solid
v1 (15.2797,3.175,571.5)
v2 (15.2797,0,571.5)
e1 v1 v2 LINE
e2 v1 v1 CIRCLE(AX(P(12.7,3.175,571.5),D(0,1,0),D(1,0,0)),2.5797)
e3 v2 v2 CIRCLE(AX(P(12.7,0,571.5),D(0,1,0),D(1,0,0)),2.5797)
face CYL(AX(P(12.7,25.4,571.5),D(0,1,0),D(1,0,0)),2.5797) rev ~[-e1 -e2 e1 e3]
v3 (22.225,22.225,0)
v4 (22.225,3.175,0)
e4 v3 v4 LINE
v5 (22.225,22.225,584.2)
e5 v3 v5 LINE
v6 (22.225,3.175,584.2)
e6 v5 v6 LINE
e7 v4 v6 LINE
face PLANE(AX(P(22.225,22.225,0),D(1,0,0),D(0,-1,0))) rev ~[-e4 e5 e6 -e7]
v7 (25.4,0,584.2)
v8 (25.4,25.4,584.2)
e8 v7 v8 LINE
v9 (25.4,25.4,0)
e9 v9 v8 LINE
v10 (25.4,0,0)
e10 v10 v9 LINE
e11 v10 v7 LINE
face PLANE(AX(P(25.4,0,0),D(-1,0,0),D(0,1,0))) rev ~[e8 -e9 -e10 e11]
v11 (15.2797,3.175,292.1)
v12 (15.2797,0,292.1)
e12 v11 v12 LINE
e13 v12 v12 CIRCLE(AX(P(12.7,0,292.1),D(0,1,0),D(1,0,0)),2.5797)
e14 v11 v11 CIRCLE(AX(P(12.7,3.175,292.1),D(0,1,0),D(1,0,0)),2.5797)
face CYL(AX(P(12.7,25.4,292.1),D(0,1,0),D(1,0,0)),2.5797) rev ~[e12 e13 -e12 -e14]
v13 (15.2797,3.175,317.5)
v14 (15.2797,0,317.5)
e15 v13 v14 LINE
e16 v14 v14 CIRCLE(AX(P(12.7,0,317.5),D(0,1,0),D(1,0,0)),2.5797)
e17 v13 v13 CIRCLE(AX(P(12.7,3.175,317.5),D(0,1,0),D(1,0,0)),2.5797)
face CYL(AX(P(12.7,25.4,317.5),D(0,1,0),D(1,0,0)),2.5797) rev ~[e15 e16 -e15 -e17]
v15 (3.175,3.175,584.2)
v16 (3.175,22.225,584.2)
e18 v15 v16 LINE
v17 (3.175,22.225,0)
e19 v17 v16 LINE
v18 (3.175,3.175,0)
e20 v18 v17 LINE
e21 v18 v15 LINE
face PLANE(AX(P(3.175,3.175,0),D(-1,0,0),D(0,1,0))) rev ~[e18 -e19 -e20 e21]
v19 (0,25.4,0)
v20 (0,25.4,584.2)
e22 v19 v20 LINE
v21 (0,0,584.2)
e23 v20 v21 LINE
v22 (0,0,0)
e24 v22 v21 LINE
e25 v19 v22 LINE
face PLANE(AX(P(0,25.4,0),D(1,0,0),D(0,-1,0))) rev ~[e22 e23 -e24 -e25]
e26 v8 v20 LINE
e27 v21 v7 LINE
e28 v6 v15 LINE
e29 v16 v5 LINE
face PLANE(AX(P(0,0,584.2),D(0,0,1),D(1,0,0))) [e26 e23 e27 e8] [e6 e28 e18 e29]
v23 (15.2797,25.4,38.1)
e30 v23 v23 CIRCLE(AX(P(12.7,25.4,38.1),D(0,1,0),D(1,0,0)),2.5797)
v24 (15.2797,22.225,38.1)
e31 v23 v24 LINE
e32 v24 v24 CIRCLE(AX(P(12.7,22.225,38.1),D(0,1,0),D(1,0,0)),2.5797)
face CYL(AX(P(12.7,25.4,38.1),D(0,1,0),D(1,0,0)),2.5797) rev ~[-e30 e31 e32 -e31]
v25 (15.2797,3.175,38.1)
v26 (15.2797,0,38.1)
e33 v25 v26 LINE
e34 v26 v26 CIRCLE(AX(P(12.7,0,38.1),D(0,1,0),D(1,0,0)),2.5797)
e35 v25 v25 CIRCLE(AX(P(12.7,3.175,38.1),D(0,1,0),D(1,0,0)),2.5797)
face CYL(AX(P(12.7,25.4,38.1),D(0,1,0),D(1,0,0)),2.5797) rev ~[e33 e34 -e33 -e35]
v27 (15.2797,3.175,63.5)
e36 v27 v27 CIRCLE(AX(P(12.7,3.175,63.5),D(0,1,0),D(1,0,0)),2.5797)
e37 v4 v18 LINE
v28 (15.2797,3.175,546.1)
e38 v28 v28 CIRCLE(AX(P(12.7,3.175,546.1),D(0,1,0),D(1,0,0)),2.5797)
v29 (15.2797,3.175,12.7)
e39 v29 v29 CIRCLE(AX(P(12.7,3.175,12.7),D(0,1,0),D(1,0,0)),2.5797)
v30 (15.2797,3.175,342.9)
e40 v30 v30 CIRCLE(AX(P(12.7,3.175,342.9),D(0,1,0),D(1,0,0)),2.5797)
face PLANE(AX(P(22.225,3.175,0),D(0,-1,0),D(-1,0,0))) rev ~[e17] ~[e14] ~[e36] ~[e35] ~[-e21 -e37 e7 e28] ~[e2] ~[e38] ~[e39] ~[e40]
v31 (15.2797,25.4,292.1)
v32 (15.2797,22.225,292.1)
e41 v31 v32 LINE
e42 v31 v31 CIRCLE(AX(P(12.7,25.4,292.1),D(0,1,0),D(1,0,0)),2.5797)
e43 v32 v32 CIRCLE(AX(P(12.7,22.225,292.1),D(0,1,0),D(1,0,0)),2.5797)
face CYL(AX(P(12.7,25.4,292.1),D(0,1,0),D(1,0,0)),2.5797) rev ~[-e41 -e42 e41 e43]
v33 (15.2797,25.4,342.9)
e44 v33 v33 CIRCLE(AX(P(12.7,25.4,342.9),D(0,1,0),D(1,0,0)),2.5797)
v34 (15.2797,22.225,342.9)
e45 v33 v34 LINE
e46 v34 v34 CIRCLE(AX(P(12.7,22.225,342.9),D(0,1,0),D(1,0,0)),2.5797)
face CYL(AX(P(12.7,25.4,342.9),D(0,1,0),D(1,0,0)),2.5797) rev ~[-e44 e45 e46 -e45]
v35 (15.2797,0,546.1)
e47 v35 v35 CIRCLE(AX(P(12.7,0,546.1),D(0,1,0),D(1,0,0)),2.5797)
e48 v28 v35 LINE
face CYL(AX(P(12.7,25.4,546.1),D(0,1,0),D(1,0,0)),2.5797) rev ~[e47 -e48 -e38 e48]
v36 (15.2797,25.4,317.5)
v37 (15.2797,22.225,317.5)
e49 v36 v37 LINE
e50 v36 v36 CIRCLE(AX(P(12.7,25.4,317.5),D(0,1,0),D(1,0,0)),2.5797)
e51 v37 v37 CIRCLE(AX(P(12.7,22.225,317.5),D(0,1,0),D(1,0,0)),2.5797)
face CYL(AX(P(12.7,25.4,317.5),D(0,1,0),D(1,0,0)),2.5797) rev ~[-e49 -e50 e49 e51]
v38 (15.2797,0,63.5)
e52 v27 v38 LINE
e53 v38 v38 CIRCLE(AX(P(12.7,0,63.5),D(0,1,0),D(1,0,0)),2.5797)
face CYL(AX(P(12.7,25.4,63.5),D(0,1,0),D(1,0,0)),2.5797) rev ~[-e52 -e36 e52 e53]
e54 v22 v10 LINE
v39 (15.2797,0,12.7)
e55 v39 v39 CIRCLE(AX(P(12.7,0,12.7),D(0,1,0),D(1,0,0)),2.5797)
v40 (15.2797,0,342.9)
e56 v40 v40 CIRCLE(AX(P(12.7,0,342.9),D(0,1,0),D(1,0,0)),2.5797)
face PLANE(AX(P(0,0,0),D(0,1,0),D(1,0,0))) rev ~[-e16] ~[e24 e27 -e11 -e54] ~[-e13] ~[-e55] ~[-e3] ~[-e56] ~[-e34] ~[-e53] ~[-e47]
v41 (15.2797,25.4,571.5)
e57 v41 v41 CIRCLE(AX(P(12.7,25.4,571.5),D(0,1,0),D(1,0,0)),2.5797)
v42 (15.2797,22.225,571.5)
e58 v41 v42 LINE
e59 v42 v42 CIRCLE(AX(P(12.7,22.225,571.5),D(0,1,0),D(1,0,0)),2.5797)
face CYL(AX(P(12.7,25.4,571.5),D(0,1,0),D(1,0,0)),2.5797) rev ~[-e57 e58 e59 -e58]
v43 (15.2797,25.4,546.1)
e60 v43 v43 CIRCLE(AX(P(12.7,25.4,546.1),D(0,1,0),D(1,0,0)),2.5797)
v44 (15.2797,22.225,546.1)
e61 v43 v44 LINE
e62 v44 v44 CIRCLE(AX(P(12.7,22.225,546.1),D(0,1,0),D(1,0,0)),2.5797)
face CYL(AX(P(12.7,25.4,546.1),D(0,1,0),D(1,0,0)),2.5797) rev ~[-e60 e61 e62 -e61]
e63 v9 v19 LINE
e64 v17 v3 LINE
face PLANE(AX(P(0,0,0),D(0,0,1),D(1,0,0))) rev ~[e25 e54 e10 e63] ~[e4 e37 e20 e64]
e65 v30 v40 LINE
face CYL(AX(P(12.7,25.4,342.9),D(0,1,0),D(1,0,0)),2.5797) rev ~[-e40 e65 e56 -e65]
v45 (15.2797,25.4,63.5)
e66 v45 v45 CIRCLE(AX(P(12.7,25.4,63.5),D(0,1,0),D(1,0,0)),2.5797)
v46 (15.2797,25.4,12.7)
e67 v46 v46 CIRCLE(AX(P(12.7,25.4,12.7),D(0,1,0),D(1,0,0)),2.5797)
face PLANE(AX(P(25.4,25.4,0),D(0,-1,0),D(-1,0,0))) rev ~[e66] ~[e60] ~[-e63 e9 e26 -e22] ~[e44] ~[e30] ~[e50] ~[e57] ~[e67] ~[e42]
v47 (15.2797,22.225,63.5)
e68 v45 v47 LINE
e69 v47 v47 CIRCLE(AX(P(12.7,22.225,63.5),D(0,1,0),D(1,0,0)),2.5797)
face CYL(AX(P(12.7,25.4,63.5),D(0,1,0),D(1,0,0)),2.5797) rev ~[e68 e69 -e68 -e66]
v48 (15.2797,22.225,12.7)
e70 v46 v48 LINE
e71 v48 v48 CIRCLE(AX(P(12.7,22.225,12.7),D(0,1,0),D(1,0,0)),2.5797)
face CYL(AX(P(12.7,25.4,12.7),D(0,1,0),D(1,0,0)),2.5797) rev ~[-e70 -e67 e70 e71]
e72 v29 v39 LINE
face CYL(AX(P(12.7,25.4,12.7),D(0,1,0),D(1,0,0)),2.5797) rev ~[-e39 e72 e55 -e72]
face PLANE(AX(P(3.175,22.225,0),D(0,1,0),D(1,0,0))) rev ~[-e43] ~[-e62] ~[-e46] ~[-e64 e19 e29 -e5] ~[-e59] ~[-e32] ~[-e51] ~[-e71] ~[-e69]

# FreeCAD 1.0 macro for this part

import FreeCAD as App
import Part
import Sketcher
Q = App.Units.Quantity

doc = App.newDocument("Part")
body = doc.addObject("PartDesign::Body", "Body")

sketch1 = body.newObject("Sketcher::SketchObject", "Sketch")
sketch1.AttachmentSupport = (doc.getObject("XY_Plane"), [""])
sketch1.MapMode = "FlatFace"
sketch1.addGeometry([
    Part.LineSegment(App.Vector(0, 25, 0), App.Vector(0, 0, 0)),
    Part.LineSegment(App.Vector(0, 0, 0), App.Vector(25, 0, 0)),
    Part.LineSegment(App.Vector(25, 0, 0), App.Vector(25, 25, 0)),
    Part.LineSegment(App.Vector(25, 25, 0), App.Vector(0, 25, 0)),
    Part.LineSegment(App.Vector(3, 3, 0), App.Vector(3, 22, 0)),
    Part.LineSegment(App.Vector(3, 22, 0), App.Vector(22, 22, 0)),
    Part.LineSegment(App.Vector(22, 22, 0), App.Vector(22, 3, 0)),
    Part.LineSegment(App.Vector(22, 3, 0), App.Vector(3, 3, 0)),
], False)
sketch1.addConstraint([
    Sketcher.Constraint("Coincident", 0, 2, 1, 1),
    Sketcher.Constraint("Coincident", 1, 2, 2, 1),
    Sketcher.Constraint("Coincident", 2, 2, 3, 1),
    Sketcher.Constraint("Coincident", 3, 2, 0, 1),
    Sketcher.Constraint("Coincident", 4, 2, 5, 1),
    Sketcher.Constraint("Coincident", 5, 2, 6, 1),
    Sketcher.Constraint("Coincident", 6, 2, 7, 1),
    Sketcher.Constraint("Coincident", 7, 2, 4, 1),
    Sketcher.Constraint("Vertical", 0),
    Sketcher.Constraint("Horizontal", 1),
    Sketcher.Constraint("Vertical", 2),
    Sketcher.Constraint("Horizontal", 3),
    Sketcher.Constraint("Vertical", 4),
    Sketcher.Constraint("Horizontal", 5),
    Sketcher.Constraint("Vertical", 6),
    Sketcher.Constraint("Horizontal", 7),
    Sketcher.Constraint("Coincident", 0, 2, -1, 1),
    Sketcher.Constraint("Equal", 3, 0),
    Sketcher.Constraint("Equal", 7, 4),
    Sketcher.Constraint("DistanceX", 1, 1, 1, 2, Q("1 in")),
    Sketcher.Constraint("DistanceX", -1, 1, 4, 2, Q("0.125 in")),
    Sketcher.Constraint("DistanceY", -1, 1, 6, 2, Q("0.125 in")),
    Sketcher.Constraint("DistanceY", 4, 2, 3, 2, Q("0.125 in")),
])
pad1 = body.newObject("PartDesign::Pad", "Pad")
pad1.Profile = sketch1
pad1.Length = Q("23 in")

sketch2 = body.newObject("Sketcher::SketchObject", "Sketch001")
sketch2.AttachmentSupport = (doc.getObject("XZ_Plane"), [""])
sketch2.MapMode = "FlatFace"
sketch2.AttachmentOffset = App.Placement(App.Vector(0, 0, -1 * 25.4), App.Rotation())
sketch2.addGeometry([
    Part.Circle(App.Vector(12.7, 12.7, 0), App.Vector(0, 0, 1), 2.6),
    Part.Circle(App.Vector(12.7, 38.1, 0), App.Vector(0, 0, 1), 2.6),
    Part.Circle(App.Vector(12.7, 63.5, 0), App.Vector(0, 0, 1), 2.6),
    Part.Circle(App.Vector(12.7, 317.5, 0), App.Vector(0, 0, 1), 2.6),
    Part.Circle(App.Vector(12.7, 292.1, 0), App.Vector(0, 0, 1), 2.6),
    Part.Circle(App.Vector(12.7, 342.9, 0), App.Vector(0, 0, 1), 2.6),
    Part.Circle(App.Vector(12.7, 546.1, 0), App.Vector(0, 0, 1), 2.6),
    Part.Circle(App.Vector(12.7, 571.5, 0), App.Vector(0, 0, 1), 2.6),
], False)
sketch2.addConstraint([
    Sketcher.Constraint("Equal", 0, 1),
    Sketcher.Constraint("Equal", 1, 2),
    Sketcher.Constraint("Equal", 2, 3),
    Sketcher.Constraint("Equal", 3, 4),
    Sketcher.Constraint("Equal", 4, 5),
    Sketcher.Constraint("Equal", 5, 6),
    Sketcher.Constraint("Equal", 6, 7),
    Sketcher.Constraint("Vertical", 0, 3, 1, 3),
    Sketcher.Constraint("Vertical", 1, 3, 2, 3),
    Sketcher.Constraint("Vertical", 2, 3, 3, 3),
    Sketcher.Constraint("Vertical", 3, 3, 4, 3),
    Sketcher.Constraint("Vertical", 4, 3, 5, 3),
    Sketcher.Constraint("Vertical", 5, 3, 6, 3),
    Sketcher.Constraint("Vertical", 6, 3, 7, 3),
    Sketcher.Constraint("Diameter", 0, Q("0.203126 in")),
    Sketcher.Constraint("DistanceY", 0, 3, 1, 3, Q("1 in")),
    Sketcher.Constraint("DistanceY", 1, 3, 2, 3, Q("1 in")),
    Sketcher.Constraint("DistanceY", 1, 3, 3, 3, Q("11 in")),
    Sketcher.Constraint("DistanceY", 4, 3, 3, 3, Q("1 in")),
    Sketcher.Constraint("DistanceY", 3, 3, 5, 3, Q("1 in")),
    Sketcher.Constraint("DistanceY", 6, 3, 7, 3, Q("1 in")),
    Sketcher.Constraint("DistanceY", 4, 3, 7, 3, Q("11 in")),
    Sketcher.Constraint("DistanceX", -1, 1, 0, 3, Q("0.5 in")),
    Sketcher.Constraint("DistanceY", -1, 1, 0, 3, Q("0.5 in")),
])
pocket1 = body.newObject("PartDesign::Pocket", "Pocket")
pocket1.Profile = sketch2
pocket1.Length = Q("23.875 in")
pocket1.Reversed = True

doc.recompute()
